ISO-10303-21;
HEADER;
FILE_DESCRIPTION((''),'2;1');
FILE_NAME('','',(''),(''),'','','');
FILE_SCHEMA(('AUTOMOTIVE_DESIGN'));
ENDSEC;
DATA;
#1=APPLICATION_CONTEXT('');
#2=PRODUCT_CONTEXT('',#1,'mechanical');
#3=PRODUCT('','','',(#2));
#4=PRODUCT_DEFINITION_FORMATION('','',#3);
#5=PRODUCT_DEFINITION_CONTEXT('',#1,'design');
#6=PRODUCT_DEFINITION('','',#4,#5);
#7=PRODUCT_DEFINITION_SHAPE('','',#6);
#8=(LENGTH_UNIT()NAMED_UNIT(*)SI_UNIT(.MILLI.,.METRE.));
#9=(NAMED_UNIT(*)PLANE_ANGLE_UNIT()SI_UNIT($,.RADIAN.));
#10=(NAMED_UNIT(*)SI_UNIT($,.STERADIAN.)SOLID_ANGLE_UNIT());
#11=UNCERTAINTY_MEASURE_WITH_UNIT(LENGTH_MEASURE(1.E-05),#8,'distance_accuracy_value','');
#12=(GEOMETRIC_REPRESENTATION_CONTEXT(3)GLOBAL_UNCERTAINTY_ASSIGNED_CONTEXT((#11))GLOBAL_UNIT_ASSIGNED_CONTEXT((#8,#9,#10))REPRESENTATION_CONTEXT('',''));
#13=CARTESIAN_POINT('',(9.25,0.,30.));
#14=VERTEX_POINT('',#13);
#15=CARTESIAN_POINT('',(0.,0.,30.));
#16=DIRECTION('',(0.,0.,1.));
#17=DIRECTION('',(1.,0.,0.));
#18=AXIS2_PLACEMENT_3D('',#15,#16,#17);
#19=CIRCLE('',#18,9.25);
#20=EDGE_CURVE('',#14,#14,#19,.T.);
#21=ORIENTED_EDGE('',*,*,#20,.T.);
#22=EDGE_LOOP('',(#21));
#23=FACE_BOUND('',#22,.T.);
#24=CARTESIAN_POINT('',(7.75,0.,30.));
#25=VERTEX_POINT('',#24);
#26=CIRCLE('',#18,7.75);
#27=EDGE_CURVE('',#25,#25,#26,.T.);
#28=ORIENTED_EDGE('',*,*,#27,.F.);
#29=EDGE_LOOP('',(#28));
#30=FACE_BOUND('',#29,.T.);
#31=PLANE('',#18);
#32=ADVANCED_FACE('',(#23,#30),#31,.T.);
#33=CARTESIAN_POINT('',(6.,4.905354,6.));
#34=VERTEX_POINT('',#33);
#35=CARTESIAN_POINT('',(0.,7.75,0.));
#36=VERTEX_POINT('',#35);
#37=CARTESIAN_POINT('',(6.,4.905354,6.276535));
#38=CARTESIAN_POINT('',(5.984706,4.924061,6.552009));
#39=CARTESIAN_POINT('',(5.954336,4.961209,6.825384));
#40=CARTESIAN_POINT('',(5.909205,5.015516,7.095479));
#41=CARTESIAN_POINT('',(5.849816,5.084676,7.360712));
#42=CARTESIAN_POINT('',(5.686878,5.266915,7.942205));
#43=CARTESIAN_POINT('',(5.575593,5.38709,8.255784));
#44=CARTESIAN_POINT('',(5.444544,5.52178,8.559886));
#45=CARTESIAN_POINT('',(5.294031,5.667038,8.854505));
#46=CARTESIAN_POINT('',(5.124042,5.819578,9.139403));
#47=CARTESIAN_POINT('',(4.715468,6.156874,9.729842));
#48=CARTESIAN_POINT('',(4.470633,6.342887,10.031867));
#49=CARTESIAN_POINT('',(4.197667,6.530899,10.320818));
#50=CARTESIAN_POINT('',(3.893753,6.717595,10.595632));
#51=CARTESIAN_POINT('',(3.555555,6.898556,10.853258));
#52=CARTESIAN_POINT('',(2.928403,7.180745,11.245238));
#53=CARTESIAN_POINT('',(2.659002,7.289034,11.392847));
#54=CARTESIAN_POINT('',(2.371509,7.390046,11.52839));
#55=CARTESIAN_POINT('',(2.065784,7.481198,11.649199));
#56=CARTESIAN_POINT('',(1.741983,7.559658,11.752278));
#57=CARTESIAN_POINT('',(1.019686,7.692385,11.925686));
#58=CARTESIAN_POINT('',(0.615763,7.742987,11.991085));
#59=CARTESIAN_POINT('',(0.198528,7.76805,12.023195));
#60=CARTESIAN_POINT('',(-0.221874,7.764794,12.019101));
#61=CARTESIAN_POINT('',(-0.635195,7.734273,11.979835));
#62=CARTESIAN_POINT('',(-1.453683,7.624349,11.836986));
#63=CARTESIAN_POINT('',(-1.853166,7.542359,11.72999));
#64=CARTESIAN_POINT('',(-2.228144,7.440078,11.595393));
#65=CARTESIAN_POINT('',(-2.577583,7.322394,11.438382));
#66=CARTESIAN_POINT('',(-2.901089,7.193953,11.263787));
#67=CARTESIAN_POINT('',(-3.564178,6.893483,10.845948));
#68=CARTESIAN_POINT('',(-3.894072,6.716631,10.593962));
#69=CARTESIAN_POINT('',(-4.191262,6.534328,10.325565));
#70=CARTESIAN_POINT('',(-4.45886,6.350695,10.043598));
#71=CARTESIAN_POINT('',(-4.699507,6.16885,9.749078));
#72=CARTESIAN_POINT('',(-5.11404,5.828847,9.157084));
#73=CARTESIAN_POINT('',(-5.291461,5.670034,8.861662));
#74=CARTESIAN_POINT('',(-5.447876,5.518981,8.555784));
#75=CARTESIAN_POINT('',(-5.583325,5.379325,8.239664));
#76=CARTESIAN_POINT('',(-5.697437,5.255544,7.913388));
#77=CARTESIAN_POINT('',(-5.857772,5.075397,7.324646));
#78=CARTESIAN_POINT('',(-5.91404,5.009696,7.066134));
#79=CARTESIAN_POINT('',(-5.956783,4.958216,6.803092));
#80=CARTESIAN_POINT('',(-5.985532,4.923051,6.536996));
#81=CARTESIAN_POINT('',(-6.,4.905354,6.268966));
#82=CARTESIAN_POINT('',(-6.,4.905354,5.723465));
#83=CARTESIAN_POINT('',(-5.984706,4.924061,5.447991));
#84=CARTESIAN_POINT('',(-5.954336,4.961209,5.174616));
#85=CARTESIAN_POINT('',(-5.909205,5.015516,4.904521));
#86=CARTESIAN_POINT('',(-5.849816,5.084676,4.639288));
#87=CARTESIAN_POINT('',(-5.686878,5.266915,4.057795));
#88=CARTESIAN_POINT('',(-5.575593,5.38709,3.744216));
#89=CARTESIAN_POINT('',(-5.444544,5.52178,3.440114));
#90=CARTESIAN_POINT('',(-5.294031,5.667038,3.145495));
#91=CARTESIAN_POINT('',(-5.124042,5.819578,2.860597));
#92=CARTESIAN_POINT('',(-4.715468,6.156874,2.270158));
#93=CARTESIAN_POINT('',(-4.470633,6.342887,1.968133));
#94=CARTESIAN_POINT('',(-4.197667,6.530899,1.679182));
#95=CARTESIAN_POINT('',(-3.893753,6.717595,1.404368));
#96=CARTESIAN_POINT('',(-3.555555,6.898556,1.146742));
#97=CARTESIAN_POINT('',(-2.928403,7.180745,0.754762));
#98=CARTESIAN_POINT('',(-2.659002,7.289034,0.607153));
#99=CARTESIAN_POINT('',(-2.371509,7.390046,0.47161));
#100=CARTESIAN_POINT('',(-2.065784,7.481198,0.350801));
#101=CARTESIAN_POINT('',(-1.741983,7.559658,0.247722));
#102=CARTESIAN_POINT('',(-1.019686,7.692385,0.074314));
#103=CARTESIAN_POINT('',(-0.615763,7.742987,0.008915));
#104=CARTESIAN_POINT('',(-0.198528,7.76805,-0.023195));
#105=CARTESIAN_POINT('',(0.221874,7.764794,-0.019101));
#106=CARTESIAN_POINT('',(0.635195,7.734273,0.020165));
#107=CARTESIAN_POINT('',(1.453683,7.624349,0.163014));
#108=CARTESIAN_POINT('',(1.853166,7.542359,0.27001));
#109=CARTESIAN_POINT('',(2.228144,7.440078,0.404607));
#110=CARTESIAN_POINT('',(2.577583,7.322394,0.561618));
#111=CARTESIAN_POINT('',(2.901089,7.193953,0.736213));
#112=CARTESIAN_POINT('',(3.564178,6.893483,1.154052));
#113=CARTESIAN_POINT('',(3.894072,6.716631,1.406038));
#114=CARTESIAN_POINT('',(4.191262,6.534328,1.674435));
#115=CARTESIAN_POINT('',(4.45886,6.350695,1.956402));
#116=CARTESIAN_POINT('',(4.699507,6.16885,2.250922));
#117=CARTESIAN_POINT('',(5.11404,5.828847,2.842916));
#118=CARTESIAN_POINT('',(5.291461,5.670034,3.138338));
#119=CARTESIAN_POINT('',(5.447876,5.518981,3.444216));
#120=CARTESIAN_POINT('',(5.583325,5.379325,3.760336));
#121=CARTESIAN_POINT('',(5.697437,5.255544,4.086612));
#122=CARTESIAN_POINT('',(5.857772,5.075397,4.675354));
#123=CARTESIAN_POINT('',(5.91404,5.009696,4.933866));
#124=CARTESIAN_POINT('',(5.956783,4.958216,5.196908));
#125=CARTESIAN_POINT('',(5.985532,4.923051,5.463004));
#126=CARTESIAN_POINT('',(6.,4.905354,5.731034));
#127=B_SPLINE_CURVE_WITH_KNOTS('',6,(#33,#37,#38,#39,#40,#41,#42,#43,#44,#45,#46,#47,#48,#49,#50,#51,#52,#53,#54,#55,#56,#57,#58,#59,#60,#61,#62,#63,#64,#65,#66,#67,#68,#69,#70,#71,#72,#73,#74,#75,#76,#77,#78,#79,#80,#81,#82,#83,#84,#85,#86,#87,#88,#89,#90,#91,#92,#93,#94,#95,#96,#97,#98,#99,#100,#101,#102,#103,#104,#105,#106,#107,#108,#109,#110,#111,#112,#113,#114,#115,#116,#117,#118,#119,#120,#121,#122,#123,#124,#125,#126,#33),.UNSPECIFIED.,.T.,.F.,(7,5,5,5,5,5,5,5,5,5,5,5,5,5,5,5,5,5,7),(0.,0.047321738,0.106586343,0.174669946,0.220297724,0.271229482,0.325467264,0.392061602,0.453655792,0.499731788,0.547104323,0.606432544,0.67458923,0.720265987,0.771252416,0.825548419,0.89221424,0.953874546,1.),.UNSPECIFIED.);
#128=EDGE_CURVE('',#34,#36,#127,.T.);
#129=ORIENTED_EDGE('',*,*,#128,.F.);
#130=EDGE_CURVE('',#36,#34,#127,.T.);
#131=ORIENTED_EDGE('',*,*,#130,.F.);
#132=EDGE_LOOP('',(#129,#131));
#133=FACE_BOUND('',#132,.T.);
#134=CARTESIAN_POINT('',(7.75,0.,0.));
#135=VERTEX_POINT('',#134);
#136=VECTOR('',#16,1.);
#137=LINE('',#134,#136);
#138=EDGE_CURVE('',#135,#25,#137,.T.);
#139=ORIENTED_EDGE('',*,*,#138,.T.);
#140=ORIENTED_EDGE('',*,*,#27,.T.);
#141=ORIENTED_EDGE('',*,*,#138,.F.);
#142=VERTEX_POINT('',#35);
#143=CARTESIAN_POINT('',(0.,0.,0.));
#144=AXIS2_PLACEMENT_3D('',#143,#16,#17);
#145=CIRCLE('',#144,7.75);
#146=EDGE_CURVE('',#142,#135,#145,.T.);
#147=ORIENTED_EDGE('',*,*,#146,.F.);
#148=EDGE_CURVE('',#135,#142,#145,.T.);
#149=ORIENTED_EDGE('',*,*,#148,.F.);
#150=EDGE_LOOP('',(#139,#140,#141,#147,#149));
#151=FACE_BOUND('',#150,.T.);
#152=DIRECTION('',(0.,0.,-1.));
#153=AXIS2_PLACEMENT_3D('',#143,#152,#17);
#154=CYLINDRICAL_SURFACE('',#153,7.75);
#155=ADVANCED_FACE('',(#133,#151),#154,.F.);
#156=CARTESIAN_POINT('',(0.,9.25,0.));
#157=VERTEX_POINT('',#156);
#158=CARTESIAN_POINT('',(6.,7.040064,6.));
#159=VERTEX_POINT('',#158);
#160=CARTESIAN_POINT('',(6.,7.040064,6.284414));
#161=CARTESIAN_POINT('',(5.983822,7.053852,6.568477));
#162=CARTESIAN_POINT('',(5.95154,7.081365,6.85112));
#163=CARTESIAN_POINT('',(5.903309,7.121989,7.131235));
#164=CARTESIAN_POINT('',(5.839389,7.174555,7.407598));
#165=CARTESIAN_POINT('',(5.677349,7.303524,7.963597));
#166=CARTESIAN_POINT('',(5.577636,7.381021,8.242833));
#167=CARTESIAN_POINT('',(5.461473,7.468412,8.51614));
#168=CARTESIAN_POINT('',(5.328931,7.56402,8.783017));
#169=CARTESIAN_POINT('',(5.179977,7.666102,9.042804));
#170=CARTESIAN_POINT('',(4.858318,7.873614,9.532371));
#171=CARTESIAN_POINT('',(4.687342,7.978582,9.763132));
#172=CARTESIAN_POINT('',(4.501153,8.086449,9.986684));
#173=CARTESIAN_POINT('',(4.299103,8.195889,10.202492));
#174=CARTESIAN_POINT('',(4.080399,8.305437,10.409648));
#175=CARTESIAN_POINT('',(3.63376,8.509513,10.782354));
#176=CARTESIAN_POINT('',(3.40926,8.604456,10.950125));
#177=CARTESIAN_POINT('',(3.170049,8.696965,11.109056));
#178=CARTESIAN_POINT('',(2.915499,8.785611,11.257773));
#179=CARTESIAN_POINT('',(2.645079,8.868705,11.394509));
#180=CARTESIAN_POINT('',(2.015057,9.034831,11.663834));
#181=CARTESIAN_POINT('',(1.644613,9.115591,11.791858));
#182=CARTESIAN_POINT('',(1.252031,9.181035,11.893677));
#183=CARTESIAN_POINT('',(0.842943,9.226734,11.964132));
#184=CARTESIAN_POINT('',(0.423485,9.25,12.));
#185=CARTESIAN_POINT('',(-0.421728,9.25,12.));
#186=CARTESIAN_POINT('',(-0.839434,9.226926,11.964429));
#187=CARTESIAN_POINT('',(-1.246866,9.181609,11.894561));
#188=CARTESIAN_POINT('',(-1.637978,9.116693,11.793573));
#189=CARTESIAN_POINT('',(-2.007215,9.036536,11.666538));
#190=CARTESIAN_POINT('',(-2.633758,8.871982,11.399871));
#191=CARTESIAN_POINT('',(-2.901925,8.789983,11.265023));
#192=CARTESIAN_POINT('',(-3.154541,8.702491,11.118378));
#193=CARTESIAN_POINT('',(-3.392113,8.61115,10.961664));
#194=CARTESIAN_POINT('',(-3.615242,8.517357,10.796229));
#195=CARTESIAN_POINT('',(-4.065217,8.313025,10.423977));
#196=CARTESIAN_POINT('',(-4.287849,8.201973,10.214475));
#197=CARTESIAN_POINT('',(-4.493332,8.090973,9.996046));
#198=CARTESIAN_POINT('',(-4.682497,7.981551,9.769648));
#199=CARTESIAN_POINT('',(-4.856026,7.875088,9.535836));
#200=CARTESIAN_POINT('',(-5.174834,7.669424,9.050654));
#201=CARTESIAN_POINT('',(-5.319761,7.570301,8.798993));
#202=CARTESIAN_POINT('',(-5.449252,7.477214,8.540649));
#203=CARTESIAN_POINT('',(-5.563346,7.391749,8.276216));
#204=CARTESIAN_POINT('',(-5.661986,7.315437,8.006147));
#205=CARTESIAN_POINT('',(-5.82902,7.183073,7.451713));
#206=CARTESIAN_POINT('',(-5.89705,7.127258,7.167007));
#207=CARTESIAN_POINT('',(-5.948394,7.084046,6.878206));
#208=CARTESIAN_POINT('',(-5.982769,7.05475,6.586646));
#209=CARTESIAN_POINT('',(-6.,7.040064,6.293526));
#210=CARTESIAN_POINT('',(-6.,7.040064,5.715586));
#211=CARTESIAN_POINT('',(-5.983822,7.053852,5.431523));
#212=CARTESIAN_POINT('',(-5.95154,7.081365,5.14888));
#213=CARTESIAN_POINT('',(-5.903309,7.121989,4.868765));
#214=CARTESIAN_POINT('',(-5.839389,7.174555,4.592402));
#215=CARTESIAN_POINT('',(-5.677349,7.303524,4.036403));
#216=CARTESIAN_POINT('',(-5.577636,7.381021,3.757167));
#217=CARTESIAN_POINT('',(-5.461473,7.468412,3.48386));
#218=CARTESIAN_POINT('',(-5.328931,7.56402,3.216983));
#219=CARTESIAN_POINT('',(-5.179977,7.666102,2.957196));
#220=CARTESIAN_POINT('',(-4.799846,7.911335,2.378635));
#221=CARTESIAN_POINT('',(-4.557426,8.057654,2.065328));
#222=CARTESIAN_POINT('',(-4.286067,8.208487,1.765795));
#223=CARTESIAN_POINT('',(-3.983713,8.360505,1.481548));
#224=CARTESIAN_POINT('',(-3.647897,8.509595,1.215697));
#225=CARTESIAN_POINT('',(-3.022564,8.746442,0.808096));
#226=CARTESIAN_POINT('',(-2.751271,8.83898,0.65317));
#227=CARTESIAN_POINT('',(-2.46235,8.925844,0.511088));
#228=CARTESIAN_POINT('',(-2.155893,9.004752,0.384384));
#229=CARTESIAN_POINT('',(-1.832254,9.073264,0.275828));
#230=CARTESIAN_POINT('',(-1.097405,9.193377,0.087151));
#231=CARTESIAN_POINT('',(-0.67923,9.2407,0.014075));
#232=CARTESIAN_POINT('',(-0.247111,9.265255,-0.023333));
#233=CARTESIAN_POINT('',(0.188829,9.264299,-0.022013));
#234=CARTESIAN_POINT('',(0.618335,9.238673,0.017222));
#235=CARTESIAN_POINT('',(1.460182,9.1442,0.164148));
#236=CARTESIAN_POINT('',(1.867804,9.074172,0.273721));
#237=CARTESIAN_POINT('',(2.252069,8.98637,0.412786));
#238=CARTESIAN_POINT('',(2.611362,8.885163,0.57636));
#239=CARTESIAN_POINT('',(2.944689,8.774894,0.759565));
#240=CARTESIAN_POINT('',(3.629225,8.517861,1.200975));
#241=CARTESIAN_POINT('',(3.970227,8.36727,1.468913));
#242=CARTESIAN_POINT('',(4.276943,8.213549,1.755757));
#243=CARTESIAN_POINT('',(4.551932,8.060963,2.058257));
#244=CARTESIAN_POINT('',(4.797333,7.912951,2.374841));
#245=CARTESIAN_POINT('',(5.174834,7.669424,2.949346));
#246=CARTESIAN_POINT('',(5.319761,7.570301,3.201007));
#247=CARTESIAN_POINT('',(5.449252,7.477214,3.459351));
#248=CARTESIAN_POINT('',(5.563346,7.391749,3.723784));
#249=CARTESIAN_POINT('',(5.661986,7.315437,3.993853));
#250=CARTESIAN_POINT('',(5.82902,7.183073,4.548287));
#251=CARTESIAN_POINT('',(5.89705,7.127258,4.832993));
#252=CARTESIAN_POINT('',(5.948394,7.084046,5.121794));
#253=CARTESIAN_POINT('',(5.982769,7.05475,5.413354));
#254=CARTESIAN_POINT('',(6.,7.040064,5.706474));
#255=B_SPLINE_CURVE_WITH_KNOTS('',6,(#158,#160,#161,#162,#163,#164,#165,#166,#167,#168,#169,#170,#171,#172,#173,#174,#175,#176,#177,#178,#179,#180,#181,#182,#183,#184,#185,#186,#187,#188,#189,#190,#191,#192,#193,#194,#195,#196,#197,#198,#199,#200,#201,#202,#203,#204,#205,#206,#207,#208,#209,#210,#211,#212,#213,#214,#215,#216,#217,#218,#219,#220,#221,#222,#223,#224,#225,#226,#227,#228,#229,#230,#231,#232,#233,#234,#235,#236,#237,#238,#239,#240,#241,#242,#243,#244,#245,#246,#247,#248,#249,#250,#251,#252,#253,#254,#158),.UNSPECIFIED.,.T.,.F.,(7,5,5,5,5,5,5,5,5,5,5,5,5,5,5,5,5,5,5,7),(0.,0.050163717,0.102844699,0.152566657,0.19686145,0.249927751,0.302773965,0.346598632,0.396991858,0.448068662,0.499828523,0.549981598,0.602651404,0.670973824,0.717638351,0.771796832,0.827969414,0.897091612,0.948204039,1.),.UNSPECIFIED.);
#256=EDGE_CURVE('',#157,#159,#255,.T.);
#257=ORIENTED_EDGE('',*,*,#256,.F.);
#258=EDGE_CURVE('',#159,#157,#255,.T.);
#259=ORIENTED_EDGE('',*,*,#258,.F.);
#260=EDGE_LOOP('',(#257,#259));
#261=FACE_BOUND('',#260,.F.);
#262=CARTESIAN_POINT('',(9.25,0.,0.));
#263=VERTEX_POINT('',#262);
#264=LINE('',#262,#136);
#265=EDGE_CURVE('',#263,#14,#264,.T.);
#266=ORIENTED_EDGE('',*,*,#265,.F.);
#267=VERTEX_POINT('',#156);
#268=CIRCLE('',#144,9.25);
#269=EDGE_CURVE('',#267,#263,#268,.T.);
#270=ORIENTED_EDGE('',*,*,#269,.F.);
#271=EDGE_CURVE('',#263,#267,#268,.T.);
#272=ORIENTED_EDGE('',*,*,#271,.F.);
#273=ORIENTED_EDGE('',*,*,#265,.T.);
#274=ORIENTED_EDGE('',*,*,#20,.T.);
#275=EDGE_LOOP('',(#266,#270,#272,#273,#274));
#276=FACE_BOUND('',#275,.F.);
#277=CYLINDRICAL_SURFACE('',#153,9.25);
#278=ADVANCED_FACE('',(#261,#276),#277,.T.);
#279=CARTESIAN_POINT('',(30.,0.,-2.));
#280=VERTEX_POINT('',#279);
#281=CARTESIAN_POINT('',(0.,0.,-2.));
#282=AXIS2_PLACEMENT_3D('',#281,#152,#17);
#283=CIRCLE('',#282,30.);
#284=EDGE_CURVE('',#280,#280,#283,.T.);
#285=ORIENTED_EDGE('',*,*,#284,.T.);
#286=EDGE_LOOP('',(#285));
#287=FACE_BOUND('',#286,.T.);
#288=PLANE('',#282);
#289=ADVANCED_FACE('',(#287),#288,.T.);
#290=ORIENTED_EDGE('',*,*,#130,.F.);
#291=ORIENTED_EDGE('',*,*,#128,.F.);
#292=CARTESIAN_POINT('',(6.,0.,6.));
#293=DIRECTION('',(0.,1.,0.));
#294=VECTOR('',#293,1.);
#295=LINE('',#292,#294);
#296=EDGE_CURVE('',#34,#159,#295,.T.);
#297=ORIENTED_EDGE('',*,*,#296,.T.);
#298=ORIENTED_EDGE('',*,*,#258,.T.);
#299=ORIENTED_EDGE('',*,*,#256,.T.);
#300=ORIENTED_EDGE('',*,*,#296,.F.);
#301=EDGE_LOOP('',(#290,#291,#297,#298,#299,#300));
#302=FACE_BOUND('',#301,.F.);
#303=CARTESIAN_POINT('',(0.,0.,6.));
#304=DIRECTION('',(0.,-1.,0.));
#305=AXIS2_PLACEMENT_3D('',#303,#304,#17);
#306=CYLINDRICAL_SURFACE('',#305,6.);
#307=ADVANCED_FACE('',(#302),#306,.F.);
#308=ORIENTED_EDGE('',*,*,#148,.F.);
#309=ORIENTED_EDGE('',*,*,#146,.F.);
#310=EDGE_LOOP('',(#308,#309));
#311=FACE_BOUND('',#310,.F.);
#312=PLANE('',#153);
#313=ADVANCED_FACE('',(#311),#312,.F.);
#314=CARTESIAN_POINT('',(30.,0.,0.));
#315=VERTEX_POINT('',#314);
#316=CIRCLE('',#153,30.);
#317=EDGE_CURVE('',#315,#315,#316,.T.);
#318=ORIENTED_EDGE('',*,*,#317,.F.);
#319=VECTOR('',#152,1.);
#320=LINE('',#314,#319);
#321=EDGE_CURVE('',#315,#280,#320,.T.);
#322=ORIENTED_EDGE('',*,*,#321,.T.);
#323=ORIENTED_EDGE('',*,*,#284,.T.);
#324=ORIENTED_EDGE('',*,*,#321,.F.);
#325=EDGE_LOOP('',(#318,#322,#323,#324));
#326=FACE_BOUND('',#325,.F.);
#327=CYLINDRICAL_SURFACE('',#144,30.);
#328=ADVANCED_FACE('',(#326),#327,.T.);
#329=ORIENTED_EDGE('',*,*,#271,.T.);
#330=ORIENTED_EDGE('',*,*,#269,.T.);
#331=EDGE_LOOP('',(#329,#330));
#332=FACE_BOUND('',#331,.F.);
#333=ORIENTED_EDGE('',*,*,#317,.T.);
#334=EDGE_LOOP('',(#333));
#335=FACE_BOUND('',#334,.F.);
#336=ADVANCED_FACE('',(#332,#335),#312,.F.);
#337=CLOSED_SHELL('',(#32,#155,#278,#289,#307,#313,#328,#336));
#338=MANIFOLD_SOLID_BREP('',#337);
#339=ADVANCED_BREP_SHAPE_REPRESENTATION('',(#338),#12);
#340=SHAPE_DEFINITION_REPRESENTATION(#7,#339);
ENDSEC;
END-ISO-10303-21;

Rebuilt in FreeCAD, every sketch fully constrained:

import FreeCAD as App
import Part
import Sketcher
from FreeCAD import Vector

doc = App.newDocument("Part")
body = doc.addObject("PartDesign::Body", "Body")

sketch1 = body.newObject("Sketcher::SketchObject", "Sketch")
sketch1.AttachmentSupport = (doc.getObject("XY_Plane"), [""])
sketch1.MapMode = "FlatFace"
sketch1.addGeometry(Part.Circle(Vector(0, 0, 0), Vector(0, 0, 1), 9), False)
sketch1.addGeometry(Part.Circle(Vector(0, 0, 0), Vector(0, 0, 1), 8), False)
sketch1.addConstraint(Sketcher.Constraint("Coincident", 0, 3, -1, 1))
sketch1.addConstraint(Sketcher.Constraint("Coincident", 1, 3, -1, 1))
sketch1.addConstraint(Sketcher.Constraint("Diameter", 0, 18.5))
sketch1.addConstraint(Sketcher.Constraint("Diameter", 1, 15.5))
pad1 = body.newObject("PartDesign::Pad", "Pad")
pad1.Profile = sketch1
pad1.Length = 30

sketch2 = body.newObject("Sketcher::SketchObject", "Sketch001")
sketch2.AttachmentSupport = (doc.getObject("XY_Plane"), [""])
sketch2.MapMode = "FlatFace"
sketch2.addGeometry(Part.Circle(Vector(0, 0, 0), Vector(0, 0, 1), 30), False)
sketch2.addConstraint(Sketcher.Constraint("Coincident", 0, 3, -1, 1))
sketch2.addConstraint(Sketcher.Constraint("Diameter", 0, 60.0))
pad2 = body.newObject("PartDesign::Pad", "Pad001")
pad2.Profile = sketch2
pad2.Length = 2
pad2.Reversed = True

sketch3 = body.newObject("Sketcher::SketchObject", "Sketch002")
sketch3.AttachmentSupport = (doc.getObject("XZ_Plane"), [""])
sketch3.MapMode = "FlatFace"
sketch3.addGeometry(Part.Circle(Vector(0, 6, 0), Vector(0, 0, 1), 6), False)
sketch3.addConstraint(Sketcher.Constraint("PointOnObject", 0, 3, -2))
sketch3.addConstraint(Sketcher.Constraint("Diameter", 0, 12.0))
sketch3.addConstraint(Sketcher.Constraint("DistanceY", -1, 1, 0, 3, 6.0))
pocket1 = body.newObject("PartDesign::Pocket", "Pocket")
pocket1.Profile = sketch3
pocket1.Length = 25

doc.recompute()
